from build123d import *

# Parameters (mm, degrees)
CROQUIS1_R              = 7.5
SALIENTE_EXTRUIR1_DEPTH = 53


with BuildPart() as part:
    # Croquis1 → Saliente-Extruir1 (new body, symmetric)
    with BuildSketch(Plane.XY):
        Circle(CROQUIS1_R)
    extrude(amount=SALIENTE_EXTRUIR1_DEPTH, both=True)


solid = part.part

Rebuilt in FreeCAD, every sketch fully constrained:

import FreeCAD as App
import Part
import Sketcher
Q = App.Units.Quantity

doc = App.newDocument("Part")
body = doc.addObject("PartDesign::Body", "Body")

# Sketch on XY plane
sketch1 = doc.addObject("Sketcher::SketchObject", "Sketch")
body.addObject(sketch1)
sketch1.AttachmentSupport = (doc.XY_Plane, [""])
sketch1.MapMode = "FlatFace"
sketch1.addGeometry(Part.Circle(App.Vector(0, 0, 0), App.Vector(0, 0, 1), 8), False)
sketch1.addConstraint(Sketcher.Constraint("Coincident", 0, 3, -1, 1))
sketch1.addConstraint(Sketcher.Constraint("Diameter", 0, Q("15 mm")))
pad1 = doc.addObject("PartDesign::Pad", "Pad")
body.addObject(pad1)
pad1.Profile = sketch1
pad1.Length = 106
pad1.Midplane = True

doc.recompute()
